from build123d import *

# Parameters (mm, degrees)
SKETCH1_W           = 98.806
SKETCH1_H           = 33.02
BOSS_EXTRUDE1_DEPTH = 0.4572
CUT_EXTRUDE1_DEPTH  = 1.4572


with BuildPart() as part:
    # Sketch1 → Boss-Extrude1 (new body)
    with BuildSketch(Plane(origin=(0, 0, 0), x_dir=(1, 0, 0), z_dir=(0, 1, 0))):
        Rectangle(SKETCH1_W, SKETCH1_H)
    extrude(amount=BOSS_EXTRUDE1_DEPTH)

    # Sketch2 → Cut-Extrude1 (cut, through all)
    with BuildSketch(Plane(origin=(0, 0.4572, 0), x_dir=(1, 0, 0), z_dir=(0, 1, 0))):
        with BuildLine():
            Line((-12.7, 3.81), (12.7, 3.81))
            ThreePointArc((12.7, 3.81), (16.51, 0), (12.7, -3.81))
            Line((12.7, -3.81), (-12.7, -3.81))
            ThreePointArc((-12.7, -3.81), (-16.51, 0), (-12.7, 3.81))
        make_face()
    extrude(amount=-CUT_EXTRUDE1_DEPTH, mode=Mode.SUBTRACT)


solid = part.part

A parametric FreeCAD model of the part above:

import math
import FreeCAD as App
import Part
import Sketcher
Q = App.Units.Quantity


def add_polygon(sketch, points):
    """Adds a closed chain of lines whose ends are joined by coincident constraints."""
    first, n = sketch.GeometryCount, len(points)
    for a, b in zip(points, points[1:] + points[:1]):
        sketch.addGeometry(Part.LineSegment(App.Vector(*a, 0), App.Vector(*b, 0)), False)
    for i in range(n):
        sketch.addConstraint(Sketcher.Constraint("Coincident", first + i, 2, first + (i + 1) % n, 1))

doc = App.newDocument("Part")
body = doc.addObject("PartDesign::Body", "Body")

# Sketch on XZ plane
sketch1 = body.newObject("Sketcher::SketchObject", "Sketch")
sketch1.AttachmentSupport = (doc.getObject("XZ_Plane"), [""])
sketch1.MapMode = "FlatFace"
add_polygon(sketch1, [(-49, -17), (-49, 17), (49, 17), (49, -17)])  # lines 0-3
sketch1.addConstraint([
    Sketcher.Constraint("Vertical", 0),
    Sketcher.Constraint("Horizontal", 1),
    Sketcher.Constraint("Vertical", 2),
    Sketcher.Constraint("Horizontal", 3),
    Sketcher.Constraint("Symmetric", 0, 2, 2, 2, -1, 1),
    Sketcher.Constraint("DistanceY", 0, 1, 0, 2, Q("1.3 in")),
    Sketcher.Constraint("DistanceX", 1, 1, 1, 2, Q("3.89 in")),
])
pad1 = body.newObject("PartDesign::Pad", "Pad")
pad1.Profile = sketch1
pad1.Length = Q("0.018 in")
pad1.Reversed = True

# Sketch on XZ plane
sketch2 = body.newObject("Sketcher::SketchObject", "Sketch001")
sketch2.AttachmentSupport = (doc.getObject("XZ_Plane"), [""])
sketch2.MapMode = "FlatFace"
sketch2.AttachmentOffset = App.Placement(App.Vector(0, 0, -0.018 * 25.4), App.Rotation())
sketch2.addGeometry([
    Part.LineSegment(App.Vector(12.7, -3.8, 0), App.Vector(-12.7, -3.8, 0)),
    Part.ArcOfCircle(Part.Circle(App.Vector(-12.7, 0, 0), App.Vector(0, 0, 1), 3.8), math.radians(90), math.radians(270)),
    Part.LineSegment(App.Vector(-12.7, 3.8, 0), App.Vector(12.7, 3.8, 0)),
    Part.ArcOfCircle(Part.Circle(App.Vector(12.7, 0, 0), App.Vector(0, 0, 1), 3.8), math.radians(-90), math.radians(90)),
], False)
sketch2.addConstraint([
    Sketcher.Constraint("Tangent", 0, 2, 1, 2),
    Sketcher.Constraint("Tangent", 1, 1, 2, 1),
    Sketcher.Constraint("Tangent", 2, 2, 3, 2),
    Sketcher.Constraint("Tangent", 3, 1, 0, 1),
    Sketcher.Constraint("Horizontal", 0),
    Sketcher.Constraint("Horizontal", 2),
    Sketcher.Constraint("Symmetric", 1, 3, 3, 3, -1, 1),
    Sketcher.Constraint("DistanceX", 0, 2, 0, 1, Q("1 in")),
    Sketcher.Constraint("Radius", 1, Q("0.15 in")),
])
pocket1 = body.newObject("PartDesign::Pocket", "Pocket")
pocket1.Profile = sketch2
pocket1.Type = "ThroughAll"
pocket1.Reversed = True

doc.recompute()
